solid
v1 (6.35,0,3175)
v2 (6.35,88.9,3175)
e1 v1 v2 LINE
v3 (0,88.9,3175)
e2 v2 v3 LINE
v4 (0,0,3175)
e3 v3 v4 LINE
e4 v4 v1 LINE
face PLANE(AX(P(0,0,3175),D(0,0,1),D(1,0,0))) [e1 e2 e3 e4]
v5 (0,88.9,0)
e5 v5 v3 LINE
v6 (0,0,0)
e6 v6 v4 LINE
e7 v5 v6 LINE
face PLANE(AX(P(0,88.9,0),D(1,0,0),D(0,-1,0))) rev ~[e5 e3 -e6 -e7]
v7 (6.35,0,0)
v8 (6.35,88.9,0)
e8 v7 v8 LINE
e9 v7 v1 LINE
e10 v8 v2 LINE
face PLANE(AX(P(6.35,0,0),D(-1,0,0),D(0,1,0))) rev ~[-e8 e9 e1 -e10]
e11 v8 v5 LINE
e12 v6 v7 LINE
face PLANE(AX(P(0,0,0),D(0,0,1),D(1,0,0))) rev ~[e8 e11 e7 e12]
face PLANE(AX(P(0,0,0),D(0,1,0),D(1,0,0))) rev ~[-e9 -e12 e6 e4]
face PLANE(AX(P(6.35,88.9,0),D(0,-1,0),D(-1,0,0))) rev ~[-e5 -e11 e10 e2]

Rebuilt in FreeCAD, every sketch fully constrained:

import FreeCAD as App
import Part
import Sketcher
Q = App.Units.Quantity

doc = App.newDocument("Part")
params = doc.addObject("Spreadsheet::Sheet", "Params")
for row, (alias, value) in enumerate([
    ("sketch1_height", "3.5 in"),
    ("sketch1_width", "0.25 in"),
    ("pad1_length", "125 in"),
], start=1):
    params.set(f"A{row}", alias)
    params.set(f"B{row}", "=" + value)
    params.setAlias(f"B{row}", alias)

body = doc.addObject("PartDesign::Body", "Body")

# Sketch on XY plane
sketch1 = doc.addObject("Sketcher::SketchObject", "Sketch")
body.addObject(sketch1)
sketch1.AttachmentSupport = (doc.XY_Plane, [""])
sketch1.MapMode = "FlatFace"
sketch1.addGeometry([
    Part.LineSegment(App.Vector(0, 88.9, 0), App.Vector(0, 0, 0)),
    Part.LineSegment(App.Vector(0, 0, 0), App.Vector(6.35, 0, 0)),
    Part.LineSegment(App.Vector(6.35, 0, 0), App.Vector(6.35, 88.9, 0)),
    Part.LineSegment(App.Vector(6.35, 88.9, 0), App.Vector(0, 88.9, 0)),
], False)
sketch1.addConstraint([
    Sketcher.Constraint("Coincident", 0, 2, 1, 1),
    Sketcher.Constraint("Coincident", 1, 2, 2, 1),
    Sketcher.Constraint("Coincident", 2, 2, 3, 1),
    Sketcher.Constraint("Coincident", 3, 2, 0, 1),
    Sketcher.Constraint("Vertical", 0),
    Sketcher.Constraint("Horizontal", 1),
    Sketcher.Constraint("Vertical", 2),
    Sketcher.Constraint("Horizontal", 3),
    Sketcher.Constraint("Coincident", 0, 2, -1, 1),
    Sketcher.Constraint("DistanceY", 0, 2, 0, 1, Q("3.5 in")),
    Sketcher.Constraint("DistanceX", 1, 1, 1, 2, Q("0.25 in")),
])
sketch1.setExpression("Constraints[9]", "Params.sketch1_height")
sketch1.setExpression("Constraints[10]", "Params.sketch1_width")
pad1 = doc.addObject("PartDesign::Pad", "Pad")
body.addObject(pad1)
pad1.Profile = sketch1
pad1.setExpression("Length", "Params.pad1_length")

doc.recompute()
